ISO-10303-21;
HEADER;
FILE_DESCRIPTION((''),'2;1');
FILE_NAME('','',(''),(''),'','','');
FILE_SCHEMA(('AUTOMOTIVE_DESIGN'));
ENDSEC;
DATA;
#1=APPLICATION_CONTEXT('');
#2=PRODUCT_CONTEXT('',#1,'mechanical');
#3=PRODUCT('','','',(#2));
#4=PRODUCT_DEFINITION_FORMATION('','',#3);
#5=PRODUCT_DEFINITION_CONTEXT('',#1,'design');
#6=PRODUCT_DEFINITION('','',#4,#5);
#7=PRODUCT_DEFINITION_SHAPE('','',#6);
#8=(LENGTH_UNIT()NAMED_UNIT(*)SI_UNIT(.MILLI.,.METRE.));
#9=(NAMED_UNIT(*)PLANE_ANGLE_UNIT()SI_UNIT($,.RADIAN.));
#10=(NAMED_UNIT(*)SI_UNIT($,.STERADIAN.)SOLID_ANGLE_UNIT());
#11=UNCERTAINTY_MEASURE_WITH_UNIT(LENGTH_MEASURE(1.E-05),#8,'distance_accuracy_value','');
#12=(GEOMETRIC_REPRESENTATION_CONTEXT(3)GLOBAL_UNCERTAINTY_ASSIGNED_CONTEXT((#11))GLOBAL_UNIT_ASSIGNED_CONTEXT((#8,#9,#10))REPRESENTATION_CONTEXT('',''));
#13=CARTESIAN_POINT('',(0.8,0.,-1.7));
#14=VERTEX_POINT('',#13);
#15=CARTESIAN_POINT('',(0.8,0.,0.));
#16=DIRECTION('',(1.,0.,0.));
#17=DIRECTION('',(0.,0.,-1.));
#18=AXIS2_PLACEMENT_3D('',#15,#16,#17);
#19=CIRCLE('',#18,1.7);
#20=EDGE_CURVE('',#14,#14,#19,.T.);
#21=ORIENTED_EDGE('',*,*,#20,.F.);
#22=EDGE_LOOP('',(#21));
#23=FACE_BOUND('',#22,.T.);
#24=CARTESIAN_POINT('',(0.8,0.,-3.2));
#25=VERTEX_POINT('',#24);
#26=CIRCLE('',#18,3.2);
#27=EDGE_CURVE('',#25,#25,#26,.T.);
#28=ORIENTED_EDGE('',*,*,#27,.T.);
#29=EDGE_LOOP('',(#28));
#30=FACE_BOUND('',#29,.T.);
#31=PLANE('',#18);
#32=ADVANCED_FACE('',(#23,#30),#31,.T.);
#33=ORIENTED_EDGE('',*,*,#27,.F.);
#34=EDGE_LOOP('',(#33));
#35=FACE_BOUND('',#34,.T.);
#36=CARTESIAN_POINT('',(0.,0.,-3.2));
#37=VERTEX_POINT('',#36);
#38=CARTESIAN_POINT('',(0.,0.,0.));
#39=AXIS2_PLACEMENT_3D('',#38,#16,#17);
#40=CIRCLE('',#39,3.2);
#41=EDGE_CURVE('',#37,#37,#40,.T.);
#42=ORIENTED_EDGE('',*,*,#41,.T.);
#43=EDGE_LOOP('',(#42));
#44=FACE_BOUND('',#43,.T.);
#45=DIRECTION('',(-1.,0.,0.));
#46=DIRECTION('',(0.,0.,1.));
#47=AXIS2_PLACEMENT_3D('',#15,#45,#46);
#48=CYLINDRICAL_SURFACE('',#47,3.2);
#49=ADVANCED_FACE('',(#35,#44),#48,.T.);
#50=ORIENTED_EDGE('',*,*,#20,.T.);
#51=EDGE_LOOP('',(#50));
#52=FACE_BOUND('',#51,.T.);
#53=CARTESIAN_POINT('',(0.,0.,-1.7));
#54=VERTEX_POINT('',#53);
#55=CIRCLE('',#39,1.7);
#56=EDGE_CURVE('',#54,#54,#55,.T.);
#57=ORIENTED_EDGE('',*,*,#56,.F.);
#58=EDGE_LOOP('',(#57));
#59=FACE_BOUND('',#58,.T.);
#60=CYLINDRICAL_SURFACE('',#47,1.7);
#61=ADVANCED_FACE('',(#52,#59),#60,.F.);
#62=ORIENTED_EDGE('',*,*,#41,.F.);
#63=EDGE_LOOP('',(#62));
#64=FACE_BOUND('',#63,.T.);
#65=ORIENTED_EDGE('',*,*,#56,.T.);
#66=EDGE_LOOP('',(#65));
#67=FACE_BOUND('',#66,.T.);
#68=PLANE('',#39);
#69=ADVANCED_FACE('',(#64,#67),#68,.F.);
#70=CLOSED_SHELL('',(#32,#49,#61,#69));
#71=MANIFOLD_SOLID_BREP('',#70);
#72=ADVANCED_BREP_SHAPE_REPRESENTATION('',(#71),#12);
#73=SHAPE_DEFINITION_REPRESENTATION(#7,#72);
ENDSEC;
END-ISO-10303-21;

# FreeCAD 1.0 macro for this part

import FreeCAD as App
import Part
import Sketcher

V = App.Vector
Q = App.Units.Quantity

doc = App.newDocument("Part")
body = doc.addObject("PartDesign::Body", "Body")

sketch1 = body.newObject("Sketcher::SketchObject", "Sketch")
sketch1.AttachmentSupport = (doc.getObject("YZ_Plane"), [""])
sketch1.MapMode = "FlatFace"
sketch1.addGeometry([
    Part.Circle(V(0, 0, 0), V(0, 0, 1), 3.2),
    Part.Circle(V(0, 0, 0), V(0, 0, 1), 1.7),
], False)
sketch1.addConstraint([
    Sketcher.Constraint("Coincident", 0, 3, -1, 1),
    Sketcher.Constraint("Coincident", 1, 3, -1, 1),
    Sketcher.Constraint("Diameter", 0, Q("6.4 mm")),
    Sketcher.Constraint("Diameter", 1, Q("3.4 mm")),
])
pad1 = body.newObject("PartDesign::Pad", "Pad")
pad1.Profile = sketch1
pad1.Length = 0.8

doc.recompute()
